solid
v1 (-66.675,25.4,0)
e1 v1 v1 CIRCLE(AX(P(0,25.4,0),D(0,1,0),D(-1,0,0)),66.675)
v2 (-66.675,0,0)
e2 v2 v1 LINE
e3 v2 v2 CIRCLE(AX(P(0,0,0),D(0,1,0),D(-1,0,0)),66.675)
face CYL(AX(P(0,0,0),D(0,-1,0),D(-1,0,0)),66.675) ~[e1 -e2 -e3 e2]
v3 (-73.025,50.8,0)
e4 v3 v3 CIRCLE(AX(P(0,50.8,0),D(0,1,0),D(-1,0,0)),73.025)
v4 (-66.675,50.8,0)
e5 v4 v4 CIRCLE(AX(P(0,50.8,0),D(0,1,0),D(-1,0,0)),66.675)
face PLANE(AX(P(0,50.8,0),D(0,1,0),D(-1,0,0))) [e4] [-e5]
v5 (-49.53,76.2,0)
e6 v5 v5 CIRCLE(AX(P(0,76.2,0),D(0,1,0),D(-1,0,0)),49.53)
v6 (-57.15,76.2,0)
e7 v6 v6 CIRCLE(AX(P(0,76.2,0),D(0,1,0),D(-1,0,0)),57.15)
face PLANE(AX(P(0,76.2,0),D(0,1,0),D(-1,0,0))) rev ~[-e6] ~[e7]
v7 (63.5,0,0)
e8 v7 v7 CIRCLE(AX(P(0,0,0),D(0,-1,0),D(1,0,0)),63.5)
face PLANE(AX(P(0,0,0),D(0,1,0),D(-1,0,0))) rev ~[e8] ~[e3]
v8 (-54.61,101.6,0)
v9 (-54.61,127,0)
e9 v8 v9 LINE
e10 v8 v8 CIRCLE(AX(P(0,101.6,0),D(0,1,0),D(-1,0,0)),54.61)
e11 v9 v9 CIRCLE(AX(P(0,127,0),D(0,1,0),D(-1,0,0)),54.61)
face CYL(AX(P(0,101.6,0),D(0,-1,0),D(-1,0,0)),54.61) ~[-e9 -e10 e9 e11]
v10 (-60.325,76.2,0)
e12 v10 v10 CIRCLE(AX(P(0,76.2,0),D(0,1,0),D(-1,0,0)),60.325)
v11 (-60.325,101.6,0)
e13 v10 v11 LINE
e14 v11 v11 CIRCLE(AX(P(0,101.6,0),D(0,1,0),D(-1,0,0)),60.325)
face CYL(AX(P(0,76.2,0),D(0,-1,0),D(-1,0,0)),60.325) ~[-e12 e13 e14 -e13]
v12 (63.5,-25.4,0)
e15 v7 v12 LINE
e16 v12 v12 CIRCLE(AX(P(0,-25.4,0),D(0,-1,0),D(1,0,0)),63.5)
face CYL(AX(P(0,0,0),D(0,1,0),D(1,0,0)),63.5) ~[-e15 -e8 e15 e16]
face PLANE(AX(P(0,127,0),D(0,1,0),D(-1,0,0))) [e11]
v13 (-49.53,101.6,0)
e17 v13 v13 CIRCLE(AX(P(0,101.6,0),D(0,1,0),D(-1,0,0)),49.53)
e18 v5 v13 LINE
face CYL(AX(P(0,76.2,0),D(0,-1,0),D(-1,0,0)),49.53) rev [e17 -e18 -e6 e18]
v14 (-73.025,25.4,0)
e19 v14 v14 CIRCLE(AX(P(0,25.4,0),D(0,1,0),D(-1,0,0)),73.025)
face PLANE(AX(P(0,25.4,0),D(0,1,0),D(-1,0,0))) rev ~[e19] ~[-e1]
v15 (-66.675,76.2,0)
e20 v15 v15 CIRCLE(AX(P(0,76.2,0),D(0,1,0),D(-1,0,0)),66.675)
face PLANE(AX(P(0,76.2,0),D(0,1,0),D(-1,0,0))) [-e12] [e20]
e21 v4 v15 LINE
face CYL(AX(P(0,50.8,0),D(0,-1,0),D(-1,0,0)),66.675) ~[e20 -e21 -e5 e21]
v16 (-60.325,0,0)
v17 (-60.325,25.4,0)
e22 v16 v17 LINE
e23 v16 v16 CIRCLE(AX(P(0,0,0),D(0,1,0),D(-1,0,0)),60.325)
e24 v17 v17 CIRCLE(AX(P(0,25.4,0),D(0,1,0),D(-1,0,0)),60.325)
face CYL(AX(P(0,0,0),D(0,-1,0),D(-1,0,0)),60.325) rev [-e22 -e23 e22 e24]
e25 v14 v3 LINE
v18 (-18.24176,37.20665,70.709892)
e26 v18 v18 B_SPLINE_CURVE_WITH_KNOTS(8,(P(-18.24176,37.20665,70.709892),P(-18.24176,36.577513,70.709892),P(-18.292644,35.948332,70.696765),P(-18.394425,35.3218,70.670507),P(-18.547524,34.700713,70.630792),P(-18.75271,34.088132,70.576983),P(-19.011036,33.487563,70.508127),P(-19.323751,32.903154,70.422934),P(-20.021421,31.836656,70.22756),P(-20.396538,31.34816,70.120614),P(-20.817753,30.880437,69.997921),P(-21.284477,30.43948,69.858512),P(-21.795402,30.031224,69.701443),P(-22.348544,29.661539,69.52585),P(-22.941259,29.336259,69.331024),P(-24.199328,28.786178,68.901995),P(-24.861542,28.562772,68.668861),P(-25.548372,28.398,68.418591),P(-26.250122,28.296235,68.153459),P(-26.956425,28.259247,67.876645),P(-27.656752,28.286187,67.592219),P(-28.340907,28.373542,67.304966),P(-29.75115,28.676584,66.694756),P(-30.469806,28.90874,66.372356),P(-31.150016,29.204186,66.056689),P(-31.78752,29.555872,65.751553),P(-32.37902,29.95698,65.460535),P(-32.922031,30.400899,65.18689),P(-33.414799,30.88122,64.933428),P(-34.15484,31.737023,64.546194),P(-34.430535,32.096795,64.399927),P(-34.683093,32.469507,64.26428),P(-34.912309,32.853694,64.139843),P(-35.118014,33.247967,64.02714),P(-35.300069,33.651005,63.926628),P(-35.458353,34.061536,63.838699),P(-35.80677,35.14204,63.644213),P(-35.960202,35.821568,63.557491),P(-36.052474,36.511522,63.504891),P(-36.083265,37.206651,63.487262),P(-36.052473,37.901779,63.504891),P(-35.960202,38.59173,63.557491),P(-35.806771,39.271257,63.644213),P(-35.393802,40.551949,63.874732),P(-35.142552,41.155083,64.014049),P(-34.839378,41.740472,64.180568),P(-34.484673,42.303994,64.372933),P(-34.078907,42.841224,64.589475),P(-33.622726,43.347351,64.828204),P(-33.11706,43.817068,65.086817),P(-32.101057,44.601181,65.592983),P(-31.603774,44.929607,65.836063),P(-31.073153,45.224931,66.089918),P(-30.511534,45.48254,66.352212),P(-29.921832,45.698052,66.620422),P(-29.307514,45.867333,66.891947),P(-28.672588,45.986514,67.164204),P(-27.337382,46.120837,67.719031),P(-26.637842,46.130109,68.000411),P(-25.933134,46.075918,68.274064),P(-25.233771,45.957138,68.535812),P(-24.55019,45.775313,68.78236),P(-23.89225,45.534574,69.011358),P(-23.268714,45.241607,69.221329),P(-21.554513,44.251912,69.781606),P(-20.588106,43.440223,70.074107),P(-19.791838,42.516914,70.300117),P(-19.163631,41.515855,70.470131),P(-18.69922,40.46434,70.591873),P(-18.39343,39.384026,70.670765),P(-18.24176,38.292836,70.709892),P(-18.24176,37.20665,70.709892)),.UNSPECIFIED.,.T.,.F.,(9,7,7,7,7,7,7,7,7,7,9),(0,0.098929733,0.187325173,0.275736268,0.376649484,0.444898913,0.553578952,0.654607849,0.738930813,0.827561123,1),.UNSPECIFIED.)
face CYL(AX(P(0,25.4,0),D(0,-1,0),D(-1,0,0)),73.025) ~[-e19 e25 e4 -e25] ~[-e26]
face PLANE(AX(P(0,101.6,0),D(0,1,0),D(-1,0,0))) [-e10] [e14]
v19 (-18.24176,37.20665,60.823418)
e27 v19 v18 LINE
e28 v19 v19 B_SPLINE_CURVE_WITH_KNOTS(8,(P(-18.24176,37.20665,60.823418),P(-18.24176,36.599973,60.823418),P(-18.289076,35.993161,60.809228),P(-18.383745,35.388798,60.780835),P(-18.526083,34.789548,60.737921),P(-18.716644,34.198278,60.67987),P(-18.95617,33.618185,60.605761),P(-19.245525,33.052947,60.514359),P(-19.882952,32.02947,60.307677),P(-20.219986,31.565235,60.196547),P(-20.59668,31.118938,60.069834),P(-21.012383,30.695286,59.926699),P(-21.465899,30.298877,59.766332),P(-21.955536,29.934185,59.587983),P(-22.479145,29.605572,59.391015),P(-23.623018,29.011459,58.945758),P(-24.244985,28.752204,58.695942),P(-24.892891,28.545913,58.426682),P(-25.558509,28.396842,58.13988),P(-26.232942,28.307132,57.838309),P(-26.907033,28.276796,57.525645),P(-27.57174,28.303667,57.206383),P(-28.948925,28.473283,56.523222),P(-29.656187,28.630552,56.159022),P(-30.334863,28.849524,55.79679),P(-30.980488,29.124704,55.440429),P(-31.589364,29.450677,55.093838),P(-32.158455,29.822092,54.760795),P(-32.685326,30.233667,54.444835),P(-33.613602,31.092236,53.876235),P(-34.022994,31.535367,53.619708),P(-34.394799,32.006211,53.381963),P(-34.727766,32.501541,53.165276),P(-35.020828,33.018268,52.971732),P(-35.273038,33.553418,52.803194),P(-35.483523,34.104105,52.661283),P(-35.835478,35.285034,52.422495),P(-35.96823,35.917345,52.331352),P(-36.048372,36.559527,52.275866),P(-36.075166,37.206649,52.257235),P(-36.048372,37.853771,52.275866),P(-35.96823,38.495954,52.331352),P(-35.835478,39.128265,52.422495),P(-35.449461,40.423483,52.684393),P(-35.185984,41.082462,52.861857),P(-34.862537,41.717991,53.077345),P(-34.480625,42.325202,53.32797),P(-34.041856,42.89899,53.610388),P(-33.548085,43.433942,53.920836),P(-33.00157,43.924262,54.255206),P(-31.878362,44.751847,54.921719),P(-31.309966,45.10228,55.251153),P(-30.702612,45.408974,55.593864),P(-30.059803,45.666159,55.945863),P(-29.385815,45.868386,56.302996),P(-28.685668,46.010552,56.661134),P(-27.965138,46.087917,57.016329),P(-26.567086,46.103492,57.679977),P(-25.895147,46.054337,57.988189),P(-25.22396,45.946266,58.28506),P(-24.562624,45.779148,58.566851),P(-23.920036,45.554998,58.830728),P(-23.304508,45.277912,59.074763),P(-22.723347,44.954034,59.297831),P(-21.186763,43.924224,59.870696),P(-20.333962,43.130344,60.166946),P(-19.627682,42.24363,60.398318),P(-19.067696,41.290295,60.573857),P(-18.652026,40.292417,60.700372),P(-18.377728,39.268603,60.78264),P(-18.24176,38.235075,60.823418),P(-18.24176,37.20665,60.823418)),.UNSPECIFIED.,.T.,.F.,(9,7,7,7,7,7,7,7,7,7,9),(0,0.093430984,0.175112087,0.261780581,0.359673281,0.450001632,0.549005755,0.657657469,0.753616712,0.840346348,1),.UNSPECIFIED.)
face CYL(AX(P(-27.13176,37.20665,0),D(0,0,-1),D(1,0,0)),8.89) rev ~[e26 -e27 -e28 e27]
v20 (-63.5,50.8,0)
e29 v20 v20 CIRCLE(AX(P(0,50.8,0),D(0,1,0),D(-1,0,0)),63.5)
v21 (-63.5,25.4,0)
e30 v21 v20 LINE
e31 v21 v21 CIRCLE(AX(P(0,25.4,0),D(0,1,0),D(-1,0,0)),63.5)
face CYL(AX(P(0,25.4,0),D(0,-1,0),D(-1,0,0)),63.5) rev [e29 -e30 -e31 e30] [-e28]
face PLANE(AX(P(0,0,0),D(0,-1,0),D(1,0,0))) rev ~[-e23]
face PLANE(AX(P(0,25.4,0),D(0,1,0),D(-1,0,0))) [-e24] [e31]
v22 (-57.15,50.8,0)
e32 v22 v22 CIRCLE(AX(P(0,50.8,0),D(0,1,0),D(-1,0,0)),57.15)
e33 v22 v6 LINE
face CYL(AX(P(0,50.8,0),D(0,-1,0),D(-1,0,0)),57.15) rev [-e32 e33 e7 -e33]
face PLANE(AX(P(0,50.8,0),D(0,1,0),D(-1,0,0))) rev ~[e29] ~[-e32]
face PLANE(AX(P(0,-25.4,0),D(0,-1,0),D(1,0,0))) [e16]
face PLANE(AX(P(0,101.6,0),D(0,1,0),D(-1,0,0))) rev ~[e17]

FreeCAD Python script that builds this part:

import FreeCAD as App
import Part
import Sketcher
Q = App.Units.Quantity

doc = App.newDocument("Part")
params = doc.addObject("Spreadsheet::Sheet", "Params")
for row, (alias, value) in enumerate([
    ("sketch1_diameter", "5 in"),
    ("pad1_length", "1 in"),
    ("sketch2_diameter", "5.25 in"),
    ("sketch2_diameter2", "4.75 in"),
    ("pad2_length", "1 in"),
    ("sketch3_diameter", "5 in"),
    ("sketch3_diameter2", "5.75 in"),
    ("pad3_length", "1 in"),
    ("sketch4_diameter", "4.5 in"),
    ("sketch4_diameter2", "5.25 in"),
    ("pad4_length", "1 in"),
    ("sketch5_diameter", "3.9 in"),
    ("sketch5_diameter2", "4.75 in"),
    ("pad5_length", "1 in"),
    ("sketch6_diameter", "4.3 in"),
    ("pad6_length", "1 in"),
    ("sketch7_diameter", "0.7 in"),
], start=1):
    params.set(f"A{row}", alias)
    params.set(f"B{row}", "=" + value)
    params.setAlias(f"B{row}", alias)

body = doc.addObject("PartDesign::Body", "Body")

# Sketch on XZ plane
sketch1 = body.newObject("Sketcher::SketchObject", "Sketch")
sketch1.AttachmentSupport = (doc.getObject("XZ_Plane"), [""])
sketch1.MapMode = "FlatFace"
sketch1.addGeometry(Part.Circle(App.Vector(0, 0, 0), App.Vector(0, 0, 1), 64), False)
sketch1.addConstraint([
    Sketcher.Constraint("Coincident", 0, 3, -1, 1),
    Sketcher.Constraint("Diameter", 0, Q("5 in")),
])
sketch1.setExpression("Constraints[1]", "Params.sketch1_diameter")
pad1 = body.newObject("PartDesign::Pad", "Pad")
pad1.Profile = sketch1
pad1.setExpression("Length", "Params.pad1_length")

# Sketch on XZ plane
sketch2 = body.newObject("Sketcher::SketchObject", "Sketch001")
sketch2.AttachmentSupport = (doc.getObject("XZ_Plane"), [""])
sketch2.MapMode = "FlatFace"
sketch2.addGeometry([
    Part.Circle(App.Vector(0, 0, 0), App.Vector(0, 0, 1), 67),
    Part.Circle(App.Vector(0, 0, 0), App.Vector(0, 0, 1), 60),
], False)
sketch2.addConstraint([
    Sketcher.Constraint("Coincident", 0, 3, -1, 1),
    Sketcher.Constraint("Coincident", 1, 3, -1, 1),
    Sketcher.Constraint("Diameter", 0, Q("5.25 in")),
    Sketcher.Constraint("Diameter", 1, Q("4.75 in")),
])
sketch2.setExpression("Constraints[2]", "Params.sketch2_diameter")
sketch2.setExpression("Constraints[3]", "Params.sketch2_diameter2")
pad2 = body.newObject("PartDesign::Pad", "Pad001")
pad2.Profile = sketch2
pad2.setExpression("Length", "Params.pad2_length")
pad2.Reversed = True

# Sketch on XZ plane
sketch3 = body.newObject("Sketcher::SketchObject", "Sketch002")
sketch3.AttachmentSupport = (doc.getObject("XZ_Plane"), [""])
sketch3.MapMode = "FlatFace"
sketch3.AttachmentOffset = App.Placement(App.Vector(0, 0, -1 * 25.4), App.Rotation())
sketch3.addGeometry([
    Part.Circle(App.Vector(0, 0, 0), App.Vector(0, 0, 1), 73),
    Part.Circle(App.Vector(0, 0, 0), App.Vector(0, 0, 1), 64),
], False)
sketch3.addConstraint([
    Sketcher.Constraint("Coincident", 0, 3, -1, 1),
    Sketcher.Constraint("Coincident", 1, 3, -1, 1),
    Sketcher.Constraint("Diameter", 1, Q("5 in")),
    Sketcher.Constraint("Diameter", 0, Q("5.75 in")),
])
sketch3.setExpression("Constraints[2]", "Params.sketch3_diameter")
sketch3.setExpression("Constraints[3]", "Params.sketch3_diameter2")
pad3 = body.newObject("PartDesign::Pad", "Pad002")
pad3.Profile = sketch3
pad3.setExpression("Length", "Params.pad3_length")
pad3.Reversed = True

# Sketch on XZ plane
sketch4 = body.newObject("Sketcher::SketchObject", "Sketch003")
sketch4.AttachmentSupport = (doc.getObject("XZ_Plane"), [""])
sketch4.MapMode = "FlatFace"
sketch4.AttachmentOffset = App.Placement(App.Vector(0, 0, -2 * 25.4), App.Rotation())
sketch4.addGeometry([
    Part.Circle(App.Vector(0, 0, 0), App.Vector(0, 0, 1), 67),
    Part.Circle(App.Vector(0, 0, 0), App.Vector(0, 0, 1), 57),
], False)
sketch4.addConstraint([
    Sketcher.Constraint("Coincident", 0, 3, -1, 1),
    Sketcher.Constraint("Coincident", 1, 3, -1, 1),
    Sketcher.Constraint("Diameter", 1, Q("4.5 in")),
    Sketcher.Constraint("Diameter", 0, Q("5.25 in")),
])
sketch4.setExpression("Constraints[2]", "Params.sketch4_diameter")
sketch4.setExpression("Constraints[3]", "Params.sketch4_diameter2")
pad4 = body.newObject("PartDesign::Pad", "Pad003")
pad4.Profile = sketch4
pad4.setExpression("Length", "Params.pad4_length")
pad4.Reversed = True

# Sketch on XZ plane
sketch5 = body.newObject("Sketcher::SketchObject", "Sketch004")
sketch5.AttachmentSupport = (doc.getObject("XZ_Plane"), [""])
sketch5.MapMode = "FlatFace"
sketch5.AttachmentOffset = App.Placement(App.Vector(0, 0, -3 * 25.4), App.Rotation())
sketch5.addGeometry([
    Part.Circle(App.Vector(0, 0, 0), App.Vector(0, 0, 1), 60),
    Part.Circle(App.Vector(0, 0, 0), App.Vector(0, 0, 1), 50),
], False)
sketch5.addConstraint([
    Sketcher.Constraint("Coincident", 0, 3, -1, 1),
    Sketcher.Constraint("Coincident", 1, 3, -1, 1),
    Sketcher.Constraint("Diameter", 1, Q("3.9 in")),
    Sketcher.Constraint("Diameter", 0, Q("4.75 in")),
])
sketch5.setExpression("Constraints[2]", "Params.sketch5_diameter")
sketch5.setExpression("Constraints[3]", "Params.sketch5_diameter2")
pad5 = body.newObject("PartDesign::Pad", "Pad004")
pad5.Profile = sketch5
pad5.setExpression("Length", "Params.pad5_length")
pad5.Reversed = True

# Sketch on XZ plane
sketch6 = body.newObject("Sketcher::SketchObject", "Sketch005")
sketch6.AttachmentSupport = (doc.getObject("XZ_Plane"), [""])
sketch6.MapMode = "FlatFace"
sketch6.AttachmentOffset = App.Placement(App.Vector(0, 0, -4 * 25.4), App.Rotation())
sketch6.addGeometry(Part.Circle(App.Vector(0, 0, 0), App.Vector(0, 0, 1), 55), False)
sketch6.addConstraint([
    Sketcher.Constraint("Coincident", 0, 3, -1, 1),
    Sketcher.Constraint("Diameter", 0, Q("4.3 in")),
])
sketch6.setExpression("Constraints[1]", "Params.sketch6_diameter")
pad6 = body.newObject("PartDesign::Pad", "Pad005")
pad6.Profile = sketch6
pad6.setExpression("Length", "Params.pad6_length")
pad6.Reversed = True

# Sketch on XY plane
sketch7 = body.newObject("Sketcher::SketchObject", "Sketch006")
sketch7.AttachmentSupport = (doc.getObject("XY_Plane"), [""])
sketch7.MapMode = "FlatFace"
sketch7.addGeometry(Part.Circle(App.Vector(-27, 37, 0), App.Vector(0, 0, 1), 9), False)
sketch7.addConstraint([
    Sketcher.Constraint("Diameter", 0, Q("0.7 in")),
    Sketcher.Constraint("DistanceX", 0, 3, -1, 1, 27.13176),
    Sketcher.Constraint("DistanceY", -1, 1, 0, 3, 37.20665),
])
sketch7.setExpression("Constraints[0]", "Params.sketch7_diameter")
pocket1 = body.newObject("PartDesign::Pocket", "Pocket")
pocket1.Profile = sketch7
pocket1.Type = "ThroughAll"
pocket1.Reversed = True

doc.recompute()
